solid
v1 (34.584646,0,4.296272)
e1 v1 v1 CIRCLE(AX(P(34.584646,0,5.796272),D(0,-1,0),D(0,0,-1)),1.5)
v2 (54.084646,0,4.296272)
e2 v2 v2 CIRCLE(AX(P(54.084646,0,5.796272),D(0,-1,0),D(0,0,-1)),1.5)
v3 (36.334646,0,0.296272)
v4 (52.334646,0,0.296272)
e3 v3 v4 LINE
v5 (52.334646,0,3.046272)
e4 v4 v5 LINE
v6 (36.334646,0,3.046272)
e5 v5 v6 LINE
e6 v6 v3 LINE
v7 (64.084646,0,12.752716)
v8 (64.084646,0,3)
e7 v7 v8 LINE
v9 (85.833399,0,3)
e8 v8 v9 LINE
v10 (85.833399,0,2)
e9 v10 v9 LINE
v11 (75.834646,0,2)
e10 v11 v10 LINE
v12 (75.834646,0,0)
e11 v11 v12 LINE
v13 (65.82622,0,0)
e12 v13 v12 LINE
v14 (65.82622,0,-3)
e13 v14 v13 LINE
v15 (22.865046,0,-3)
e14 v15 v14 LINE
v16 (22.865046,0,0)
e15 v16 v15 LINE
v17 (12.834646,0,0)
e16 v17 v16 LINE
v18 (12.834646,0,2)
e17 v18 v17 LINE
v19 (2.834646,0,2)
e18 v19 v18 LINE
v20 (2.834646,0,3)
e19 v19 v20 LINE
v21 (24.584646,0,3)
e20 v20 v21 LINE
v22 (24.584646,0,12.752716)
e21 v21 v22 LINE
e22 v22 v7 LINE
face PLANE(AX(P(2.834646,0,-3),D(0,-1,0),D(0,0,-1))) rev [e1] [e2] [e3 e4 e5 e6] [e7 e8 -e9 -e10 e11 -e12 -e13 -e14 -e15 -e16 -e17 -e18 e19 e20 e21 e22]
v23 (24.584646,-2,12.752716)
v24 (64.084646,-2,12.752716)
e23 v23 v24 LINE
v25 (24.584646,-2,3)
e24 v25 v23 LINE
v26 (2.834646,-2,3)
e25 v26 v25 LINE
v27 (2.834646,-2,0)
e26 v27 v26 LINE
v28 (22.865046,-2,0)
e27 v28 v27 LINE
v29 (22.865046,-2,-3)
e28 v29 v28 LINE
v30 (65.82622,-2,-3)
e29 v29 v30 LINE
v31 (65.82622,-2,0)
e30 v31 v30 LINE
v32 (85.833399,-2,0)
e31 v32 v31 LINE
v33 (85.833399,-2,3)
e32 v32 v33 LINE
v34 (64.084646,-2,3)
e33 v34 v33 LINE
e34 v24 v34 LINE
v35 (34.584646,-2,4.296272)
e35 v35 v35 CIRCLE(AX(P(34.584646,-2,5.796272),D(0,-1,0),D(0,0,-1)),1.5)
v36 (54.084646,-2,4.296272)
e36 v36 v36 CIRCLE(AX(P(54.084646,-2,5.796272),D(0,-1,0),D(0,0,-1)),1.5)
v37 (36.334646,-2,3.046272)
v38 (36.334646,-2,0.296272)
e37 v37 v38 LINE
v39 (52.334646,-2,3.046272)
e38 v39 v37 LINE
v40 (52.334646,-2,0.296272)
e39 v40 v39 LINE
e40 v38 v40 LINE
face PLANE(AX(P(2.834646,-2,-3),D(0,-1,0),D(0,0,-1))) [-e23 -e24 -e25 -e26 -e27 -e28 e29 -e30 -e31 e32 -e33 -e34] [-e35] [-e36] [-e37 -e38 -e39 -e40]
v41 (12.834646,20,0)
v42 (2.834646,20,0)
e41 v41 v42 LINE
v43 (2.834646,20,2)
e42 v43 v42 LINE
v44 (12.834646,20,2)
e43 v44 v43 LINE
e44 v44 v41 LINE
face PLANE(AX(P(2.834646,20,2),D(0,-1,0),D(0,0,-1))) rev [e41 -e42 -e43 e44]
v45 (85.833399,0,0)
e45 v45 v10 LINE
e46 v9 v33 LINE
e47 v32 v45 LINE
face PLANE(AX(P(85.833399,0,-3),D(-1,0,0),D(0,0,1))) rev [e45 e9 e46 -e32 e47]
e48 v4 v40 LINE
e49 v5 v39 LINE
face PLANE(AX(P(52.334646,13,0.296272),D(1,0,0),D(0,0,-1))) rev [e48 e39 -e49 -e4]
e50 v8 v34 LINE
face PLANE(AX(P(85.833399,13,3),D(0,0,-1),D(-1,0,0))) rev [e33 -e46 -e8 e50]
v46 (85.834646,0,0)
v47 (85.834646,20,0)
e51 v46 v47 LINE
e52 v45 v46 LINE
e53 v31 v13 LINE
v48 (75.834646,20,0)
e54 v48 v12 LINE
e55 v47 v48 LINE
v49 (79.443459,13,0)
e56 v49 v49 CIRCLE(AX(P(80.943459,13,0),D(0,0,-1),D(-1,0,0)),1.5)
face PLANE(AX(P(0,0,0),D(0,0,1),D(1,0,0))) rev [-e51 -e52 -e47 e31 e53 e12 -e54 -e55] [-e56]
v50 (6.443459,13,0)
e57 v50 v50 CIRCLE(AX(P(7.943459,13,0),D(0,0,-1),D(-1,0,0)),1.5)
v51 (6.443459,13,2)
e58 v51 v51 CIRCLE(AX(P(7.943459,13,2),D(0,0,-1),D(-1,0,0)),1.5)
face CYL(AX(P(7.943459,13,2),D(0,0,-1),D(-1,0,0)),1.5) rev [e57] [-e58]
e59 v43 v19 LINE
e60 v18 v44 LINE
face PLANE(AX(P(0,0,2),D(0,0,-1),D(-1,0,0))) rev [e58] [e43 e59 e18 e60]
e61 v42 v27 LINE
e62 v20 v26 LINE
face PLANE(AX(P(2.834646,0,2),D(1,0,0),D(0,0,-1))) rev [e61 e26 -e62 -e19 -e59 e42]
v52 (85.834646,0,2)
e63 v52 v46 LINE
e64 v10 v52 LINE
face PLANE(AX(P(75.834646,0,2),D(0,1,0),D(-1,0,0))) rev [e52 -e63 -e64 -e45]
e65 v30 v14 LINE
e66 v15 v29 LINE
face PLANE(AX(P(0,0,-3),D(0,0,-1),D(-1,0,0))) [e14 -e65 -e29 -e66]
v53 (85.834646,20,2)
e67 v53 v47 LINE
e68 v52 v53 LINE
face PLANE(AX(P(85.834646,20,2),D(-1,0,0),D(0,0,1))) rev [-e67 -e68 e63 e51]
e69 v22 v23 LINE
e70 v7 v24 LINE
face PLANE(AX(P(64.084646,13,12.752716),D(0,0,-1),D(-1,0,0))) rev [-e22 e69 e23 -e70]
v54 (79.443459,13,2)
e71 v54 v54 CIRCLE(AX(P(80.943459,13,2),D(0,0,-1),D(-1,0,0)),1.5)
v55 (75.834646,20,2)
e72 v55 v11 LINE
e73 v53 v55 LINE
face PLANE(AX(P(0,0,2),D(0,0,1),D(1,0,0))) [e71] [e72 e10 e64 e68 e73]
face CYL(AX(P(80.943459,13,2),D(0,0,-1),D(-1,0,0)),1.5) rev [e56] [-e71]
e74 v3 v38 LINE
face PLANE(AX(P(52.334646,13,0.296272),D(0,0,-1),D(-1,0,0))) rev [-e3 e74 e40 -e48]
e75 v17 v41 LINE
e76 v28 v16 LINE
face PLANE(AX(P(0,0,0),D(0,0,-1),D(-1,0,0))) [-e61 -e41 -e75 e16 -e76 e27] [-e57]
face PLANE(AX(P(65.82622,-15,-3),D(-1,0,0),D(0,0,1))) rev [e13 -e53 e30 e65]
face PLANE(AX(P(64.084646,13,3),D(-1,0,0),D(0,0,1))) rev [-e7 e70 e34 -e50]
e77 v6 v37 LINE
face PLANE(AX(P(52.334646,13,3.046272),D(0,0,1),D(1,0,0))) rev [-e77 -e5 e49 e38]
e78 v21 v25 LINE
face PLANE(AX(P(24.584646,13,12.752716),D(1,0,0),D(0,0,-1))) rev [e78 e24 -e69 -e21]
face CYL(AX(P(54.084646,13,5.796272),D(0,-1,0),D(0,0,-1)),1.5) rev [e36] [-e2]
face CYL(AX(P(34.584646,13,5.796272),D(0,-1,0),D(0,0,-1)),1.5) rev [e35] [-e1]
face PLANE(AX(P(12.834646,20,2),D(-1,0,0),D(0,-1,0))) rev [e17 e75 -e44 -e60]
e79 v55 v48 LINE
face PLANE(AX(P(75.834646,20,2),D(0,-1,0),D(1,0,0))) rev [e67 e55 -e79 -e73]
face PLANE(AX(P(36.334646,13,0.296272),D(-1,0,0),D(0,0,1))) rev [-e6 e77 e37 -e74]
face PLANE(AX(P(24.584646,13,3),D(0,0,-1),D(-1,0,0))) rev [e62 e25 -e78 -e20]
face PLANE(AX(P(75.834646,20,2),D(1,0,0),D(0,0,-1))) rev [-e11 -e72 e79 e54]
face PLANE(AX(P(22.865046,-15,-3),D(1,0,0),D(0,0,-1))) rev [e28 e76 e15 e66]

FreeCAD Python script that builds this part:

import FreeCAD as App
import Part
import Sketcher
from FreeCAD import Vector

doc = App.newDocument("Part")
body = doc.addObject("PartDesign::Body", "Body")

sketch1 = body.newObject("Sketcher::SketchObject", "Sketch")
sketch1.AttachmentSupport = (doc.getObject("XY_Plane"), [""])
sketch1.MapMode = "FlatFace"
sketch1.addGeometry([
    Part.LineSegment(Vector(2.834646, 20, 0), Vector(2.834646, 0, 0)),
    Part.LineSegment(Vector(2.834646, 0, 0), Vector(12.834646, 0, 0)),
    Part.LineSegment(Vector(12.834646, 0, 0), Vector(12.834646, 20, 0)),
    Part.LineSegment(Vector(12.834646, 20, 0), Vector(2.834646, 20, 0)),
], False)
sketch1.addConstraint([
    Sketcher.Constraint("Coincident", 0, 2, 1, 1),
    Sketcher.Constraint("Coincident", 1, 2, 2, 1),
    Sketcher.Constraint("Coincident", 2, 2, 3, 1),
    Sketcher.Constraint("Coincident", 3, 2, 0, 1),
    Sketcher.Constraint("Vertical", 0),
    Sketcher.Constraint("Horizontal", 1),
    Sketcher.Constraint("Vertical", 2),
    Sketcher.Constraint("Horizontal", 3),
    Sketcher.Constraint("PointOnObject", 0, 2, -1),
    Sketcher.Constraint("DistanceX", 1, 1, 1, 2, 10.0),
    Sketcher.Constraint("DistanceY", 0, 2, 0, 1, 20.0),
    Sketcher.Constraint("DistanceX", -1, 1, 0, 2, 2.834646),
])
pad1 = body.newObject("PartDesign::Pad", "Pad")
pad1.Profile = sketch1
pad1.Length = 2
body2 = doc.addObject("PartDesign::Body", "Body001")

sketch2 = body2.newObject("Sketcher::SketchObject", "Sketch001")
sketch2.AttachmentSupport = (doc.getObject("XY_Plane001"), [""])
sketch2.MapMode = "FlatFace"
sketch2.addGeometry([
    Part.LineSegment(Vector(75.834646, 20, 0), Vector(75.834646, 0, 0)),
    Part.LineSegment(Vector(75.834646, 0, 0), Vector(85.834646, 0, 0)),
    Part.LineSegment(Vector(85.834646, 0, 0), Vector(85.834646, 20, 0)),
    Part.LineSegment(Vector(85.834646, 20, 0), Vector(75.834646, 20, 0)),
], False)
sketch2.addConstraint([
    Sketcher.Constraint("Coincident", 0, 2, 1, 1),
    Sketcher.Constraint("Coincident", 1, 2, 2, 1),
    Sketcher.Constraint("Coincident", 2, 2, 3, 1),
    Sketcher.Constraint("Coincident", 3, 2, 0, 1),
    Sketcher.Constraint("Vertical", 0),
    Sketcher.Constraint("Horizontal", 1),
    Sketcher.Constraint("Vertical", 2),
    Sketcher.Constraint("Horizontal", 3),
    Sketcher.Constraint("PointOnObject", 0, 2, -1),
    Sketcher.Constraint("DistanceX", 1, 1, 1, 2, 10.0),
    Sketcher.Constraint("DistanceY", 0, 2, 0, 1, 20.0),
    Sketcher.Constraint("DistanceX", -1, 1, 0, 2, 75.834646),
])
pad2 = body2.newObject("PartDesign::Pad", "Pad001")
pad2.Profile = sketch2
pad2.Length = 2
body3 = doc.addObject("PartDesign::Body", "Body002")
body3.AllowCompound = True

sketch3 = body3.newObject("Sketcher::SketchObject", "Sketch002")
sketch3.AttachmentSupport = (doc.getObject("XY_Plane002"), [""])
sketch3.MapMode = "FlatFace"
sketch3.addGeometry([
    Part.Circle(Vector(80.943459, 13, 0), Vector(0, 0, 1), 1.5),
    Part.Circle(Vector(7.943459, 13, 0), Vector(0, 0, 1), 1.5),
], False)
sketch3.addConstraint([
    Sketcher.Constraint("Equal", 0, 1),
    Sketcher.Constraint("Horizontal", 0, 3, 1, 3),
    Sketcher.Constraint("Diameter", 0, 3.0),
    Sketcher.Constraint("DistanceY", -1, 1, 0, 3, 13.0),
    Sketcher.Constraint("DistanceX", 1, 3, 0, 3, 73.0),
    Sketcher.Constraint("DistanceX", -1, 1, 0, 3, 80.943459),
])
pad3 = body3.newObject("PartDesign::Pad", "Pad002")
pad3.Profile = sketch3
pad3.Length = 2
doc.recompute()

body4 = doc.addObject("PartDesign::Body", "Body003")
body4.BaseFeature = body3
boolean = body.newObject("PartDesign::Boolean", "Boolean")
boolean.Type = "Cut"
boolean.addObjects([body4])
doc.recompute()

boolean2 = body2.newObject("PartDesign::Boolean", "Boolean001")
boolean2.Type = "Cut"
boolean2.addObjects([body3])
body.AllowCompound = True
doc.recompute()

boolean3 = body.newObject("PartDesign::Boolean", "Boolean002")
boolean3.Type = "Fuse"
boolean3.addObjects([body2])

sketch4 = body.newObject("Sketcher::SketchObject", "Sketch003")
sketch4.AttachmentSupport = (doc.getObject("XY_Plane"), [""])
sketch4.MapMode = "FlatFace"
sketch4.AttachmentOffset = App.Placement(Vector(0, 0, 2), App.Rotation())
sketch4.addGeometry([
    Part.LineSegment(Vector(2.834646, 0, 0), Vector(2.834646, -2, 0)),
    Part.LineSegment(Vector(2.834646, -2, 0), Vector(85.833399, -2, 0)),
    Part.LineSegment(Vector(85.833399, -2, 0), Vector(85.833399, 0, 0)),
    Part.LineSegment(Vector(85.833399, 0, 0), Vector(2.834646, 0, 0)),
], False)
sketch4.addConstraint([
    Sketcher.Constraint("Coincident", 0, 2, 1, 1),
    Sketcher.Constraint("Coincident", 1, 2, 2, 1),
    Sketcher.Constraint("Coincident", 2, 2, 3, 1),
    Sketcher.Constraint("Coincident", 3, 2, 0, 1),
    Sketcher.Constraint("Vertical", 0),
    Sketcher.Constraint("Horizontal", 1),
    Sketcher.Constraint("Vertical", 2),
    Sketcher.Constraint("Horizontal", 3),
    Sketcher.Constraint("PointOnObject", 2, 2, -1),
    Sketcher.Constraint("DistanceY", 0, 2, 0, 1, 2.0),
    Sketcher.Constraint("DistanceX", -1, 1, 1, 2, 85.833399),
    Sketcher.Constraint("DistanceX", 1, 1, 1, 2, 82.998754),
])
pad4 = body.newObject("PartDesign::Pad", "Pad003")
pad4.Profile = sketch4
pad4.Type = "TwoLengths"
pad4.Length = 15
pad4.Length2 = 5

sketch5 = body.newObject("Sketcher::SketchObject", "Sketch004")
sketch5.AttachmentSupport = (doc.getObject("XZ_Plane"), [""])
sketch5.MapMode = "FlatFace"
sketch5.AttachmentOffset = App.Placement(Vector(0, 0, 2), App.Rotation())
sketch5.addGeometry([
    Part.Circle(Vector(54.084646, 5.796272, 0), Vector(0, 0, 1), 1.5),
    Part.Circle(Vector(34.584646, 5.796272, 0), Vector(0, 0, 1), 1.5),
    Part.LineSegment(Vector(36.334646, 3.046272, 0), Vector(36.334646, 0.296272, 0)),
    Part.LineSegment(Vector(36.334646, 0.296272, 0), Vector(52.334646, 0.296272, 0)),
    Part.LineSegment(Vector(52.334646, 0.296272, 0), Vector(52.334646, 3.046272, 0)),
    Part.LineSegment(Vector(52.334646, 3.046272, 0), Vector(36.334646, 3.046272, 0)),
    Part.LineSegment(Vector(24.584646, 3, 0), Vector(24.584646, 12.752716, 0)),
    Part.LineSegment(Vector(24.584646, 12.752716, 0), Vector(64.084646, 12.752716, 0)),
    Part.LineSegment(Vector(64.084646, 12.752716, 0), Vector(64.084646, 3, 0)),
    Part.LineSegment(Vector(64.084646, 3, 0), Vector(85.833399, 3, 0)),
    Part.LineSegment(Vector(85.833399, 3, 0), Vector(85.833399, 17, 0)),
    Part.LineSegment(Vector(85.833399, 17, 0), Vector(2.834646, 17, 0)),
    Part.LineSegment(Vector(2.834646, 17, 0), Vector(2.834646, 3, 0)),
    Part.LineSegment(Vector(2.834646, 3, 0), Vector(24.584646, 3, 0)),
], False)
sketch5.addConstraint([
    Sketcher.Constraint("Coincident", 2, 2, 3, 1),
    Sketcher.Constraint("Coincident", 3, 2, 4, 1),
    Sketcher.Constraint("Coincident", 4, 2, 5, 1),
    Sketcher.Constraint("Coincident", 5, 2, 2, 1),
    Sketcher.Constraint("Coincident", 6, 2, 7, 1),
    Sketcher.Constraint("Coincident", 7, 2, 8, 1),
    Sketcher.Constraint("Coincident", 8, 2, 9, 1),
    Sketcher.Constraint("Coincident", 9, 2, 10, 1),
    Sketcher.Constraint("Coincident", 10, 2, 11, 1),
    Sketcher.Constraint("Coincident", 11, 2, 12, 1),
    Sketcher.Constraint("Coincident", 12, 2, 13, 1),
    Sketcher.Constraint("Coincident", 13, 2, 6, 1),
    Sketcher.Constraint("Vertical", 2),
    Sketcher.Constraint("Horizontal", 3),
    Sketcher.Constraint("Vertical", 4),
    Sketcher.Constraint("Horizontal", 5),
    Sketcher.Constraint("Vertical", 6),
    Sketcher.Constraint("Horizontal", 7),
    Sketcher.Constraint("Vertical", 8),
    Sketcher.Constraint("Horizontal", 9),
    Sketcher.Constraint("Vertical", 10),
    Sketcher.Constraint("Horizontal", 11),
    Sketcher.Constraint("Vertical", 12),
    Sketcher.Constraint("Horizontal", 13),
    Sketcher.Constraint("Equal", 0, 1),
    Sketcher.Constraint("Horizontal", 0, 3, 1, 3),
    Sketcher.Constraint("Horizontal", 9, 2, 12, 2),
    Sketcher.Constraint("Diameter", 0, 3.0),
    Sketcher.Constraint("DistanceX", 3, 1, 3, 2, 16.0),
    Sketcher.Constraint("DistanceY", 10, 1, 10, 2, 14.0),
    Sketcher.Constraint("DistanceX", 7, 1, 7, 2, 39.5),
    Sketcher.Constraint("DistanceY", -1, 1, 8, 2, 3.0),
    Sketcher.Constraint("DistanceX", 6, 2, 1, 3, 10.0),
    Sketcher.Constraint("DistanceX", 0, 3, 7, 2, 10.0),
    Sketcher.Constraint("DistanceX", 13, 1, 13, 2, 21.75),
    Sketcher.Constraint("DistanceY", 2, 2, 2, 1, 2.75),
    Sketcher.Constraint("DistanceY", 2, 2, 1, 3, 5.5),
    Sketcher.Constraint("DistanceX", 11, 2, 5, 2, 33.5),
    Sketcher.Constraint("DistanceX", -1, 1, 9, 2, 85.833399),
    Sketcher.Constraint("DistanceX", 9, 1, 9, 2, 21.748754),
    Sketcher.Constraint("DistanceY", 6, 1, 6, 2, 9.752716),
    Sketcher.Constraint("DistanceY", -1, 1, 0, 3, 5.796272),
])
pocket1 = body.newObject("PartDesign::Pocket", "Pocket")
pocket1.Profile = sketch5
pocket1.Length = 15

sketch6 = body.newObject("Sketcher::SketchObject", "Sketch005")
sketch6.AttachmentSupport = (doc.getObject("XZ_Plane"), [""])
sketch6.MapMode = "FlatFace"
sketch6.addGeometry([
    Part.LineSegment(Vector(2.834646, -3, 0), Vector(2.834646, 0, 0)),
    Part.LineSegment(Vector(2.834646, 0, 0), Vector(22.865046, 0, 0)),
    Part.LineSegment(Vector(22.865046, 0, 0), Vector(22.865046, -3, 0)),
    Part.LineSegment(Vector(22.865046, -3, 0), Vector(2.834646, -3, 0)),
    Part.LineSegment(Vector(65.82622, -3, 0), Vector(65.82622, 0, 0)),
    Part.LineSegment(Vector(65.82622, 0, 0), Vector(85.833399, 0, 0)),
    Part.LineSegment(Vector(85.833399, 0, 0), Vector(85.833399, -3, 0)),
    Part.LineSegment(Vector(85.833399, -3, 0), Vector(65.82622, -3, 0)),
], False)
sketch6.addConstraint([
    Sketcher.Constraint("Coincident", 0, 2, 1, 1),
    Sketcher.Constraint("Coincident", 1, 2, 2, 1),
    Sketcher.Constraint("Coincident", 2, 2, 3, 1),
    Sketcher.Constraint("Coincident", 3, 2, 0, 1),
    Sketcher.Constraint("Coincident", 4, 2, 5, 1),
    Sketcher.Constraint("Coincident", 5, 2, 6, 1),
    Sketcher.Constraint("Coincident", 6, 2, 7, 1),
    Sketcher.Constraint("Coincident", 7, 2, 4, 1),
    Sketcher.Constraint("Vertical", 0),
    Sketcher.Constraint("Horizontal", 1),
    Sketcher.Constraint("Vertical", 2),
    Sketcher.Constraint("Horizontal", 3),
    Sketcher.Constraint("Vertical", 4),
    Sketcher.Constraint("Horizontal", 5),
    Sketcher.Constraint("Vertical", 6),
    Sketcher.Constraint("Horizontal", 7),
    Sketcher.Constraint("PointOnObject", 0, 2, -1),
    Sketcher.Constraint("PointOnObject", 4, 2, -1),
    Sketcher.Constraint("Horizontal", 3, 2, 6, 2),
    Sketcher.Constraint("DistanceY", 0, 1, 0, 2, 3.0),
    Sketcher.Constraint("DistanceX", 1, 1, 1, 2, 20.030401),
    Sketcher.Constraint("DistanceX", 5, 1, 5, 2, 20.007179),
    Sketcher.Constraint("DistanceX", -1, 1, 5, 2, 85.833399),
    Sketcher.Constraint("DistanceX", -1, 1, 0, 2, 2.834646),
])
pocket2 = body.newObject("PartDesign::Pocket", "Pocket001")
pocket2.Profile = sketch6
pocket2.Length = 15
pocket2.Reversed = True

doc.recompute()
